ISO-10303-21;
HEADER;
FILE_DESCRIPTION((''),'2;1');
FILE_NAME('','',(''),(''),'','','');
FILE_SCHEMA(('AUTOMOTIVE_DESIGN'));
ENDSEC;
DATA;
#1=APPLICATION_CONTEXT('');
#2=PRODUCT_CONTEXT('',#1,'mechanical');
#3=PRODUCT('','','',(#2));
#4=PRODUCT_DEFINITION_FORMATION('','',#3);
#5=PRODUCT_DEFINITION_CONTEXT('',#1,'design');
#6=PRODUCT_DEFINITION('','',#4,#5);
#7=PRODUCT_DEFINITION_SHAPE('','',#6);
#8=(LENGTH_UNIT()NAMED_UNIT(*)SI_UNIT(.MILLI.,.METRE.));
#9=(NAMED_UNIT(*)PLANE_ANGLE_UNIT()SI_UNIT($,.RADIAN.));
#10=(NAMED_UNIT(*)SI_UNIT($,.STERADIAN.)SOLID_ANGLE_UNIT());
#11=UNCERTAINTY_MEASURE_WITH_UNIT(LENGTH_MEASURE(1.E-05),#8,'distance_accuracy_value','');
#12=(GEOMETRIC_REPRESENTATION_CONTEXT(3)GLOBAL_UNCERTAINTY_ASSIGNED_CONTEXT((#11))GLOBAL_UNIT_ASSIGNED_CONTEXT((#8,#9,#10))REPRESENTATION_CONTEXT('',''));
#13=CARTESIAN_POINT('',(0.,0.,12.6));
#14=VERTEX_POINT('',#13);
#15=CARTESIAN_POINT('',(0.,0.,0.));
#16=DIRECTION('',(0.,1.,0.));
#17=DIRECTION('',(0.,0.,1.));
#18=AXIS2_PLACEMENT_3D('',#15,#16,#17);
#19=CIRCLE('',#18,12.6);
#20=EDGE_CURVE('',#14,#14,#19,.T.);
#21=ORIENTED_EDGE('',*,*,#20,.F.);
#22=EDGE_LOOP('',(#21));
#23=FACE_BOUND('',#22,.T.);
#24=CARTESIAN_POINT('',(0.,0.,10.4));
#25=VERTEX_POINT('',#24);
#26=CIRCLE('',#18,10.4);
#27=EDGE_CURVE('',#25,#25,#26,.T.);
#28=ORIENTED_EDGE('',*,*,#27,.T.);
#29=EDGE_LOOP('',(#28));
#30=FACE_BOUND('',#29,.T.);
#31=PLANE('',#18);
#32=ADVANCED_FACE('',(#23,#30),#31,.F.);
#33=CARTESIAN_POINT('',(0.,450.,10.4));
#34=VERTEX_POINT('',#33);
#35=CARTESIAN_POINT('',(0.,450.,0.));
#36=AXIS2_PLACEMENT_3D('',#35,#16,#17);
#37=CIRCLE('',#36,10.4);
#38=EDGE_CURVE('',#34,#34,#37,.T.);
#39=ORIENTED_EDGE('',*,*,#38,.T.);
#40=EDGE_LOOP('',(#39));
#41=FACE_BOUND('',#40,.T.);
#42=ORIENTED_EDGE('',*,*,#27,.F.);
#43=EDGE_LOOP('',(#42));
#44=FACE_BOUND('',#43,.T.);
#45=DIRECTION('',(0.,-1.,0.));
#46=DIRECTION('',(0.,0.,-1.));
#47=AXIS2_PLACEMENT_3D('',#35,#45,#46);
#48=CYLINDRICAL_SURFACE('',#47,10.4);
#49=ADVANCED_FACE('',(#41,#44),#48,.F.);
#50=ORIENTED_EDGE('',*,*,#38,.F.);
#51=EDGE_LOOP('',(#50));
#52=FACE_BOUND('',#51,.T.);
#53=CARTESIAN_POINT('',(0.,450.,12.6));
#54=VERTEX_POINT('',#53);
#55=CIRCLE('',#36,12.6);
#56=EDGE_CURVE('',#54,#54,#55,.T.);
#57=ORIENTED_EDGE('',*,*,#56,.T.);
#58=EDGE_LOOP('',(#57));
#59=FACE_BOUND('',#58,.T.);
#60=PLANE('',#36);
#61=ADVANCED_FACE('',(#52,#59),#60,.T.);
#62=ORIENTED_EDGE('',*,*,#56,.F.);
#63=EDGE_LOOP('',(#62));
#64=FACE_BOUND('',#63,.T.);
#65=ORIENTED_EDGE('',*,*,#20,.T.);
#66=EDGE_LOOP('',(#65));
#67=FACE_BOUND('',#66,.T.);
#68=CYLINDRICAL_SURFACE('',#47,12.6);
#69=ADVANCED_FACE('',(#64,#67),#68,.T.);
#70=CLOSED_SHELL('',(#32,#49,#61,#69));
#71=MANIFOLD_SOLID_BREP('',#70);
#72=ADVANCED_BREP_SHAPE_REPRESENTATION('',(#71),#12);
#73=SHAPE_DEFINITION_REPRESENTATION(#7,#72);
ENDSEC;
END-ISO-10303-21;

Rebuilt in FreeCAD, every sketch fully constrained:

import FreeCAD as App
import Part
import Sketcher


def faces_at(feature, points):
    """Names of the faces that lie closest to the given points."""
    faces = feature.Shape.Faces
    near = lambda p: min(range(len(faces)), key=lambda i: faces[i].distToShape(Part.Vertex(*p))[0])
    return sorted({f"Face{near(p) + 1}" for p in points})

doc = App.newDocument("Part")
params = doc.addObject("Spreadsheet::Sheet", "Params")
for row, (alias, value) in enumerate([
    ("sketch1_diameter", "25.2 mm"),
    ("pad1_length", "450 mm"),
    ("thickness_wall", "2.2 mm"),
], start=1):
    params.set(f"A{row}", alias)
    params.set(f"B{row}", "=" + value)
    params.setAlias(f"B{row}", alias)

body = doc.addObject("PartDesign::Body", "Body")

sketch1 = body.newObject("Sketcher::SketchObject", "Sketch")
sketch1.AttachmentSupport = (doc.getObject("XZ_Plane"), [""])
sketch1.MapMode = "FlatFace"
sketch1.addGeometry(Part.Circle(App.Vector(0, 0, 0), App.Vector(0, 0, 1), 12.6), False)
sketch1.addConstraint([
    Sketcher.Constraint("Coincident", 0, 3, -1, 1),
    Sketcher.Constraint("Diameter", 0, 25.2),
])
sketch1.setExpression("Constraints[1]", "Params.sketch1_diameter")
pad1 = body.newObject("PartDesign::Pad", "Pad")
pad1.Profile = sketch1
pad1.setExpression("Length", "Params.pad1_length")
pad1.Reversed = True
doc.recompute()

thickness = body.newObject("PartDesign::Thickness", "Thickness")
thickness.Base = (pad1, faces_at(pad1, [(0, 450, 0), (0, 0, 0)]))
thickness.setExpression("Value", "Params.thickness_wall")
thickness.Reversed = True
thickness.Join = "Intersection"

doc.recompute()
